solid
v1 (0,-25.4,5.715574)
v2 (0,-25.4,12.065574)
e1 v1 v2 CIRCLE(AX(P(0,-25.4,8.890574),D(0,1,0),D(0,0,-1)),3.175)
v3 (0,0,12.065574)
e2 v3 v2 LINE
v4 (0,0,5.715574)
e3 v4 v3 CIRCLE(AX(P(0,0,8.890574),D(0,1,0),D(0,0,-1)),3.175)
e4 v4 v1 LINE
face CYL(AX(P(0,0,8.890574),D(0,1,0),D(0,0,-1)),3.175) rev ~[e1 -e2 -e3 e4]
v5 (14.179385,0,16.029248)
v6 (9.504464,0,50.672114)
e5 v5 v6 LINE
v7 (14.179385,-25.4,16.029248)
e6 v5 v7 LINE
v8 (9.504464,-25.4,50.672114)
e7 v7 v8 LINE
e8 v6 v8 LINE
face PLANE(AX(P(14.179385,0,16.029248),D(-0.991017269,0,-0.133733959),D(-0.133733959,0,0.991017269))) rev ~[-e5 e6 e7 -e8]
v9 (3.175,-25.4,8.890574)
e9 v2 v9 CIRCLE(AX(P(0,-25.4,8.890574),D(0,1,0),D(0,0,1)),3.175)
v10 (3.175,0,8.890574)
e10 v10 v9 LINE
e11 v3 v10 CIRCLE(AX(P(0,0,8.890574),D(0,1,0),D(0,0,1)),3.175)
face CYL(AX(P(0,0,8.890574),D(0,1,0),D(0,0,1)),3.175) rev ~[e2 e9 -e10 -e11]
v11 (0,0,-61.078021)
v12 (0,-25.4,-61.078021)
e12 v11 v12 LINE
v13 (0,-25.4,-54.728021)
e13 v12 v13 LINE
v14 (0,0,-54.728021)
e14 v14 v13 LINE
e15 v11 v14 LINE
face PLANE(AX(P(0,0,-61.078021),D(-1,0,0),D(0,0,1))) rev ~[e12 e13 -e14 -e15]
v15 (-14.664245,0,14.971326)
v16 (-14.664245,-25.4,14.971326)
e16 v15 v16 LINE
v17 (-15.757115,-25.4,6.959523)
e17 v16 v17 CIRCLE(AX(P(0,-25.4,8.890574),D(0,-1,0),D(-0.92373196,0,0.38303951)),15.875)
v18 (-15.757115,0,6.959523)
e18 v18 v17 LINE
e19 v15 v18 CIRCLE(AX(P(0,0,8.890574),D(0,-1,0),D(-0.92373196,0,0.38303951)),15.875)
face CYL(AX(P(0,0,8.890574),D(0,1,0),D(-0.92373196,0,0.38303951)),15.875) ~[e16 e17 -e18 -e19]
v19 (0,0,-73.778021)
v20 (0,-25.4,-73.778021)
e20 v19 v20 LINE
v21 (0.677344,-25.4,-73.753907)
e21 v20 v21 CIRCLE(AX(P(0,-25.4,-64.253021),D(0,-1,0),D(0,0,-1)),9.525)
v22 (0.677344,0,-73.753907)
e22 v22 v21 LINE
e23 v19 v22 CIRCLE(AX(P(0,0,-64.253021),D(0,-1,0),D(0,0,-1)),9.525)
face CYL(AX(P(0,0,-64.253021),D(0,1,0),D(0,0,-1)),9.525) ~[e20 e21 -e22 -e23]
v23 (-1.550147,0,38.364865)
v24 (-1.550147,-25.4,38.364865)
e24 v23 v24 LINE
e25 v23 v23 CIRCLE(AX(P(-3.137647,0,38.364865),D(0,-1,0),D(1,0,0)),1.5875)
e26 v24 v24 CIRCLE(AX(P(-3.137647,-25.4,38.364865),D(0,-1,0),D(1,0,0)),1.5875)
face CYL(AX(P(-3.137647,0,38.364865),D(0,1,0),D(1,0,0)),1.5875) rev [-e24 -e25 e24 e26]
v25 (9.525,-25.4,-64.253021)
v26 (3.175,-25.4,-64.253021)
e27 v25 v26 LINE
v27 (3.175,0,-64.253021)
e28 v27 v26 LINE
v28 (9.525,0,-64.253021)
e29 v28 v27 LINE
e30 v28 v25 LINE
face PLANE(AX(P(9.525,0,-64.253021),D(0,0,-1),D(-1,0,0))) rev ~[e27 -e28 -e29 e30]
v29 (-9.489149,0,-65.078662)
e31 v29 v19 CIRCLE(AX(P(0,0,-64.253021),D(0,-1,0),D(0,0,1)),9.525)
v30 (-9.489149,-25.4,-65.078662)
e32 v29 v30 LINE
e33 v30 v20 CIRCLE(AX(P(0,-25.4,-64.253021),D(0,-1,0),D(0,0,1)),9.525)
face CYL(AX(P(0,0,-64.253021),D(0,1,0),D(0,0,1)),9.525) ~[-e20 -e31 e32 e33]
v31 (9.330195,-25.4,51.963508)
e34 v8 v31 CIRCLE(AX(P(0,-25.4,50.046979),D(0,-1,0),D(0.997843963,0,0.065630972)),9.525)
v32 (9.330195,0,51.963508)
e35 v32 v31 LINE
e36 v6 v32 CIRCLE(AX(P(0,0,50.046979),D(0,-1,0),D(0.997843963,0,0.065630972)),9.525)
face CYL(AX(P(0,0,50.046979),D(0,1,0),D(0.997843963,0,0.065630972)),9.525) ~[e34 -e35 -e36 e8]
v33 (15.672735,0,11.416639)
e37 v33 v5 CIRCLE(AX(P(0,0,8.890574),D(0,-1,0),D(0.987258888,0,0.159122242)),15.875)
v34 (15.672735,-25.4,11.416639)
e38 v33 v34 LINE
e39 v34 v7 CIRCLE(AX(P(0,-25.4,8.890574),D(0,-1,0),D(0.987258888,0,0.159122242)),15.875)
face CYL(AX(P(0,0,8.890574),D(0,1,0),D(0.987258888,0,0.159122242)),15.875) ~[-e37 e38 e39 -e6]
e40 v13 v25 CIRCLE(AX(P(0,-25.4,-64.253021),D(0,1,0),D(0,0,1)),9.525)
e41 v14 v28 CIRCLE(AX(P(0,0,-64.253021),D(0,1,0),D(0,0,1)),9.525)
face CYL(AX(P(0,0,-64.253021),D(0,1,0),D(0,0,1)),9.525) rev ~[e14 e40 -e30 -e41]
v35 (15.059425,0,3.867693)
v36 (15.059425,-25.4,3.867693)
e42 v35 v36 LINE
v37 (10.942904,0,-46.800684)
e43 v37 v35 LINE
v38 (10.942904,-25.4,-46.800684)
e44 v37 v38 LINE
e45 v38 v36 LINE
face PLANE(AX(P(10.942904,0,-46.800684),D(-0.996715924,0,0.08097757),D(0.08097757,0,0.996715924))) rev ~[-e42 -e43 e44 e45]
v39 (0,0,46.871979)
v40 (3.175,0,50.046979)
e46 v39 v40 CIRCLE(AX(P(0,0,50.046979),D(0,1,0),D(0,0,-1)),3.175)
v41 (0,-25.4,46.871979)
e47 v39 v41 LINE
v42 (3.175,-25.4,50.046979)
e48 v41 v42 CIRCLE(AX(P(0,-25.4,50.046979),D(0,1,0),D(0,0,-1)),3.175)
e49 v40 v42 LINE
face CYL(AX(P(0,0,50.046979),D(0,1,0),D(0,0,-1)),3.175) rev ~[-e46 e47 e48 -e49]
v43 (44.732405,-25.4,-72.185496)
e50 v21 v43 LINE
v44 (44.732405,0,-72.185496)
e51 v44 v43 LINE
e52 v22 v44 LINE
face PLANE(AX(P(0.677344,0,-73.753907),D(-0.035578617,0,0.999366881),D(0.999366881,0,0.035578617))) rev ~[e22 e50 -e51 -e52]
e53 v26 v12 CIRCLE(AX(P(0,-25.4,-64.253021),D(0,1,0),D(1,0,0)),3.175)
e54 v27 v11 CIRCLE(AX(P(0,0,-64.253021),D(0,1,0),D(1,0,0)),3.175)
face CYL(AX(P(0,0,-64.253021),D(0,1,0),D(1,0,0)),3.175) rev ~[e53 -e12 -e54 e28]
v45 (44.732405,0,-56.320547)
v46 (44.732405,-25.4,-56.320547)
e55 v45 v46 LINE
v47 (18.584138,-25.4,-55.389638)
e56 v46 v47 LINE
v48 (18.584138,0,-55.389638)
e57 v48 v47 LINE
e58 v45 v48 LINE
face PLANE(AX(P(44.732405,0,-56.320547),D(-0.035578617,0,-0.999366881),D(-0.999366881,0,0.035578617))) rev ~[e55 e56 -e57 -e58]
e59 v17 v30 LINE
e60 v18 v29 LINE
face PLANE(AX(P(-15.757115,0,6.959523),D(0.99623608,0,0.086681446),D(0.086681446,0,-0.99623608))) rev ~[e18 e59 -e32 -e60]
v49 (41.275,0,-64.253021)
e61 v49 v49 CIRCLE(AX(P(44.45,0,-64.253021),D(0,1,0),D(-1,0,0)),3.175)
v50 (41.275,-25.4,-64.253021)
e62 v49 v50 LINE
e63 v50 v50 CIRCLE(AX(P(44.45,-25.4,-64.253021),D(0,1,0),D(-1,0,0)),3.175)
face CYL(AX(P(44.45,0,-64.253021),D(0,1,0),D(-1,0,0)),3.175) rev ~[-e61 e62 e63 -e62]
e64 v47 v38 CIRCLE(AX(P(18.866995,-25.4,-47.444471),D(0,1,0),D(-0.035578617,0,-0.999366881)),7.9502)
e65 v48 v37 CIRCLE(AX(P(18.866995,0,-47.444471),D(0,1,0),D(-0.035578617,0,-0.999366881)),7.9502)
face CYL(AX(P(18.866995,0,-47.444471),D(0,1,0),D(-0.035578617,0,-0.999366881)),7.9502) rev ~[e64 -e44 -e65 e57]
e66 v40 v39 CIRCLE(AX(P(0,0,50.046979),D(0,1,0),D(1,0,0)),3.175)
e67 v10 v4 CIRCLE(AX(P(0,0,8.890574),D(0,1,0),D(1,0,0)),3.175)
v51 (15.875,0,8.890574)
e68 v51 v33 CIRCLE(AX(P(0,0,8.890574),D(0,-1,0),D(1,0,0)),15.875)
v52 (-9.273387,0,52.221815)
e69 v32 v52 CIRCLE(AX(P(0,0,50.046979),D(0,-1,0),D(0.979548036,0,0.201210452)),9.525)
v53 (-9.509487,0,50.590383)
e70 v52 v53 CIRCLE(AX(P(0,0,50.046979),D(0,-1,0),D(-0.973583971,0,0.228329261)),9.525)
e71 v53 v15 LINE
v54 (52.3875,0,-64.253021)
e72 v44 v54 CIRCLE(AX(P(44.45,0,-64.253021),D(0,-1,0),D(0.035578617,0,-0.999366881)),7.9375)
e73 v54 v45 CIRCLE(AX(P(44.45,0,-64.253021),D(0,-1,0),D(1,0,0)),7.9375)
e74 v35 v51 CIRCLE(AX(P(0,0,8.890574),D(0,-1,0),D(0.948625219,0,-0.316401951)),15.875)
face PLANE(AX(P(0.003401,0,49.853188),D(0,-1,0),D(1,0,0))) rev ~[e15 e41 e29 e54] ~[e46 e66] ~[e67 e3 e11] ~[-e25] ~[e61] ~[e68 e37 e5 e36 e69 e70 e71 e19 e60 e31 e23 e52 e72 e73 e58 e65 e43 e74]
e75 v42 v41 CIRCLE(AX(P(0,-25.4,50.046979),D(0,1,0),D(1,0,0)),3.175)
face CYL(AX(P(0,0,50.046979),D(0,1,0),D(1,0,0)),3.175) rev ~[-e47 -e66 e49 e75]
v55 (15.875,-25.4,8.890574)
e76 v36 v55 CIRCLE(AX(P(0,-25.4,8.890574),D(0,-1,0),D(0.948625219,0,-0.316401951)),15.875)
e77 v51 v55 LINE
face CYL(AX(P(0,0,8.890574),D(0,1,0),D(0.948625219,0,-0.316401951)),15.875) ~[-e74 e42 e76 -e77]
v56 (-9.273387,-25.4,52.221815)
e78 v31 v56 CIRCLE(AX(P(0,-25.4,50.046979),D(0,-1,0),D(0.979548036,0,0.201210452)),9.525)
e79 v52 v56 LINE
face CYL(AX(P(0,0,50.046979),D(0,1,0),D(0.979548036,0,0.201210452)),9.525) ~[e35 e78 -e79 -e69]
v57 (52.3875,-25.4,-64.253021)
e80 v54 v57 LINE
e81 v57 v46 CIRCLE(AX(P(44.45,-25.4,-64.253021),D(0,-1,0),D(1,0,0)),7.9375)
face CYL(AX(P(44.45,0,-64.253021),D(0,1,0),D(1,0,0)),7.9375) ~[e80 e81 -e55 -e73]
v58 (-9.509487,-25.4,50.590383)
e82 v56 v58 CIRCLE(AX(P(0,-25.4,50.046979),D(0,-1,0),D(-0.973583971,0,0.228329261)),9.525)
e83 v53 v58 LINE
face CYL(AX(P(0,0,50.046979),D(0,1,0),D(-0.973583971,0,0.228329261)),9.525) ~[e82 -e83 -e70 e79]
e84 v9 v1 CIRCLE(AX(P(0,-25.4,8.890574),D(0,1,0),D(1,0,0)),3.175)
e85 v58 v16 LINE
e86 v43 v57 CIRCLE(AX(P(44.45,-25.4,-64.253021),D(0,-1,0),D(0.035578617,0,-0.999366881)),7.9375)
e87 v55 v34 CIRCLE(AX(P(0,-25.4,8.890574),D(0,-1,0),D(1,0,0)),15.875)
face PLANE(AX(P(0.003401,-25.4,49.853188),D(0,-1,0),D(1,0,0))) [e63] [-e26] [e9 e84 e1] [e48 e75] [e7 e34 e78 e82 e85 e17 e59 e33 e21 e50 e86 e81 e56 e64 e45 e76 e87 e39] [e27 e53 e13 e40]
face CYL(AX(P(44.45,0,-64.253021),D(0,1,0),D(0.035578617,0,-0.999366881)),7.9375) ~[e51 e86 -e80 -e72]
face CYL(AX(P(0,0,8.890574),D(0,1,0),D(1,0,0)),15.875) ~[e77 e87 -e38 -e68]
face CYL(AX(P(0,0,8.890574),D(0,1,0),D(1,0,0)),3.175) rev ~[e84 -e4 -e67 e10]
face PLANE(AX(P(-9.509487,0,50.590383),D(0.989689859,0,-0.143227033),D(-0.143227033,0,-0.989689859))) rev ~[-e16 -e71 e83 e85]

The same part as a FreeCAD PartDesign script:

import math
import FreeCAD as App
import Part
import Sketcher
from FreeCAD import Vector
Q = App.Units.Quantity

doc = App.newDocument("Part")
body = doc.addObject("PartDesign::Body", "Body")

sketch1 = doc.addObject("Sketcher::SketchObject", "Sketch")
body.addObject(sketch1)
sketch1.AttachmentSupport = (doc.XZ_Plane, [""])
sketch1.MapMode = "FlatFace"
sketch1.addGeometry([
    Part.ArcOfCircle(Part.Circle(Vector(0, -64.253021, 0), Vector(0, 0, 1), 9.525), math.radians(-90), math.radians(-85.92213)),
    Part.LineSegment(Vector(0.677344, -73.753907, 0), Vector(44.732405, -72.185496, 0)),
    Part.ArcOfCircle(Part.Circle(Vector(44.45, -64.253021, 0), Vector(0, 0, 1), 7.9375), math.radians(-87.961065), math.radians(0)),
    Part.ArcOfCircle(Part.Circle(Vector(44.45, -64.253021, 0), Vector(0, 0, 1), 7.9375), math.radians(0), math.radians(87.961065)),
    Part.LineSegment(Vector(44.732405, -56.320547, 0), Vector(18.584138, -55.389638, 0)),
    Part.ArcOfCircle(Part.Circle(Vector(18.866995, -47.444471, 0), Vector(0, 0, 1), 7.9502), math.radians(175.355241), math.radians(267.961065)),
    Part.LineSegment(Vector(10.942904, -46.800684, 0), Vector(15.059425, 3.867693, 0)),
    Part.ArcOfCircle(Part.Circle(Vector(0, 8.890574, 0), Vector(0, 0, 1), 15.875), math.radians(-18.445469), math.radians(0)),
    Part.ArcOfCircle(Part.Circle(Vector(0, 8.890574, 0), Vector(0, 0, 1), 15.875), math.radians(0), math.radians(9.155952)),
    Part.ArcOfCircle(Part.Circle(Vector(0, 8.890574, 0), Vector(0, 0, 1), 15.875), math.radians(9.155952), math.radians(26.723172)),
    Part.LineSegment(Vector(14.179385, 16.029248, 0), Vector(9.504464, 50.672114, 0)),
    Part.ArcOfCircle(Part.Circle(Vector(0, 50.046979, 0), Vector(0, 0, 1), 9.525), math.radians(3.763083), math.radians(11.607752)),
    Part.ArcOfCircle(Part.Circle(Vector(0, 50.046979, 0), Vector(0, 0, 1), 9.525), math.radians(11.607752), math.radians(166.801272)),
    Part.ArcOfCircle(Part.Circle(Vector(0, 50.046979, 0), Vector(0, 0, 1), 9.525), math.radians(166.801272), math.radians(176.72948)),
    Part.LineSegment(Vector(-9.509487, 50.590383, 0), Vector(-14.664245, 14.971326, 0)),
    Part.ArcOfCircle(Part.Circle(Vector(0, 8.890574, 0), Vector(0, 0, 1), 15.875), math.radians(157.477916), math.radians(186.986817)),
    Part.LineSegment(Vector(-15.757115, 6.959523, 0), Vector(-9.489149, -65.078662, 0)),
    Part.ArcOfCircle(Part.Circle(Vector(0, -64.253021, 0), Vector(0, 0, 1), 9.525), math.radians(-175.027278), math.radians(-90)),
    Part.ArcOfCircle(Part.Circle(Vector(0, -64.253021, 0), Vector(0, 0, 1), 9.525), math.radians(0), math.radians(90)),
    Part.LineSegment(Vector(9.525, -64.253021, 0), Vector(3.175, -64.253021, 0)),
    Part.ArcOfCircle(Part.Circle(Vector(0, -64.253021, 0), Vector(0, 0, 1), 3.175), math.radians(90), math.radians(360)),
    Part.LineSegment(Vector(0, -61.078021, 0), Vector(0, -54.728021, 0)),
    Part.Circle(Vector(44.45, -64.253021, 0), Vector(0, 0, 1), 3.175),
    Part.ArcOfCircle(Part.Circle(Vector(0, 8.890574, 0), Vector(0, 0, 1), 3.175), math.radians(0), math.radians(90)),
    Part.ArcOfCircle(Part.Circle(Vector(0, 8.890574, 0), Vector(0, 0, 1), 3.175), math.radians(-90), math.radians(0)),
    Part.ArcOfCircle(Part.Circle(Vector(0, 8.890574, 0), Vector(0, 0, 1), 3.175), math.radians(90), math.radians(270)),
    Part.Circle(Vector(-3.137647, 38.364865, 0), Vector(0, 0, 1), 1.5875),
    Part.ArcOfCircle(Part.Circle(Vector(0, 50.046979, 0), Vector(0, 0, 1), 3.175), math.radians(0), math.radians(270)),
    Part.ArcOfCircle(Part.Circle(Vector(0, 50.046979, 0), Vector(0, 0, 1), 3.175), math.radians(-90), math.radians(0)),
], False)
sketch1.addConstraint([
    Sketcher.Constraint("Coincident", 0, 2, 1, 1),
    Sketcher.Constraint("Coincident", 1, 2, 2, 1),
    Sketcher.Constraint("Coincident", 2, 2, 3, 1),
    Sketcher.Constraint("Coincident", 3, 2, 4, 1),
    Sketcher.Constraint("Coincident", 4, 2, 5, 2),
    Sketcher.Constraint("Coincident", 5, 1, 6, 1),
    Sketcher.Constraint("Coincident", 6, 2, 7, 1),
    Sketcher.Constraint("Coincident", 7, 2, 8, 1),
    Sketcher.Constraint("Coincident", 8, 2, 9, 1),
    Sketcher.Constraint("Coincident", 9, 2, 10, 1),
    Sketcher.Constraint("Coincident", 10, 2, 11, 1),
    Sketcher.Constraint("Coincident", 11, 2, 12, 1),
    Sketcher.Constraint("Coincident", 12, 2, 13, 1),
    Sketcher.Constraint("Coincident", 13, 2, 14, 1),
    Sketcher.Constraint("Coincident", 14, 2, 15, 1),
    Sketcher.Constraint("Coincident", 15, 2, 16, 1),
    Sketcher.Constraint("Coincident", 16, 2, 17, 1),
    Sketcher.Constraint("Coincident", 17, 2, 0, 1),
    Sketcher.Constraint("Coincident", 18, 1, 19, 1),
    Sketcher.Constraint("Coincident", 19, 2, 20, 2),
    Sketcher.Constraint("Coincident", 20, 1, 21, 1),
    Sketcher.Constraint("Coincident", 21, 2, 18, 2),
    Sketcher.Constraint("Coincident", 23, 1, 24, 2),
    Sketcher.Constraint("Coincident", 24, 1, 25, 2),
    Sketcher.Constraint("Coincident", 25, 1, 23, 2),
    Sketcher.Constraint("Coincident", 27, 1, 28, 2),
    Sketcher.Constraint("Coincident", 28, 1, 27, 2),
    Sketcher.Constraint("Horizontal", 19),
    Sketcher.Constraint("Vertical", 21),
    Sketcher.Constraint("Coincident", 3, 3, 2, 3),
    Sketcher.Constraint("Coincident", 8, 3, 7, 3),
    Sketcher.Constraint("Coincident", 9, 3, 7, 3),
    Sketcher.Constraint("Coincident", 12, 3, 11, 3),
    Sketcher.Constraint("Coincident", 13, 3, 11, 3),
    Sketcher.Constraint("Coincident", 15, 3, 7, 3),
    Sketcher.Constraint("Coincident", 17, 3, 0, 3),
    Sketcher.Constraint("Coincident", 18, 3, 0, 3),
    Sketcher.Constraint("Coincident", 20, 3, 0, 3),
    Sketcher.Constraint("Coincident", 22, 3, 2, 3),
    Sketcher.Constraint("Coincident", 23, 3, 7, 3),
    Sketcher.Constraint("Coincident", 24, 3, 7, 3),
    Sketcher.Constraint("Coincident", 27, 3, 11, 3),
    Sketcher.Constraint("PointOnObject", 0, 3, -2),
    Sketcher.Constraint("PointOnObject", 7, 3, -2),
    Sketcher.Constraint("PointOnObject", 11, 3, -2),
    Sketcher.Constraint("PointOnObject", 25, 3, -2),
    Sketcher.Constraint("PointOnObject", 28, 3, -2),
    Sketcher.Constraint("PointOnObject", 17, 2, -2),
    Sketcher.Constraint("PointOnObject", 20, 1, -2),
    Sketcher.Constraint("PointOnObject", 24, 1, -2),
    Sketcher.Constraint("PointOnObject", 25, 1, -2),
    Sketcher.Constraint("PointOnObject", 28, 1, -2),
    Sketcher.Constraint("Diameter", 22, Q("0.25 in")),
    Sketcher.Constraint("Diameter", 26, Q("0.125 in")),
    Sketcher.Constraint("Radius", 0, Q("0.375 in")),
    Sketcher.Constraint("Radius", 2, Q("0.3125 in")),
    Sketcher.Constraint("Radius", 5, Q("0.313 in")),
    Sketcher.Constraint("Radius", 7, Q("0.625 in")),
    Sketcher.Constraint("Radius", 11, Q("0.375 in")),
    Sketcher.Constraint("Radius", 15, Q("0.625 in")),
    Sketcher.Constraint("Radius", 18, Q("0.375 in")),
    Sketcher.Constraint("Radius", 20, Q("0.125 in")),
    Sketcher.Constraint("Radius", 23, Q("0.125 in")),
    Sketcher.Constraint("Radius", 27, Q("0.125 in")),
    Sketcher.Constraint("DistanceY", 0, 3, 11, 3, Q("4.5 in")),
    Sketcher.Constraint("DistanceX", -1, 1, 2, 3, Q("1.75 in")),
    Sketcher.Constraint("DistanceY", 19, 2, 20, 1, Q("0.125 in")),
    Sketcher.Constraint("DistanceY", 0, 3, 5, 1, Q("0.6870999 in")),
    Sketcher.Constraint("DistanceX", 13, 2, 12, 2, Q("0.236099 mm")),
    Sketcher.Constraint("Distance", 1, Q("44.082972 mm")),
    Sketcher.Constraint("Distance", 14, Q("35.990121 mm")),
    Sketcher.Constraint("DistanceY", 0, 3, -1, 1, Q("64.253021 mm")),
    Sketcher.Constraint("DistanceY", 2, 3, -1, 1, Q("64.253021 mm")),
    Sketcher.Constraint("DistanceY", 5, 3, -1, 1, Q("47.444471 mm")),
    Sketcher.Constraint("DistanceY", 2, 2, -1, 1, Q("64.253021 mm")),
    Sketcher.Constraint("DistanceX", -1, 1, 4, 2, Q("18.584138 mm")),
    Sketcher.Constraint("DistanceY", 4, 2, -1, 1, Q("55.389638 mm")),
    Sketcher.Constraint("DistanceY", -1, 1, 8, 2, Q("11.416639 mm")),
    Sketcher.Constraint("DistanceY", -1, 1, 11, 2, Q("51.963508 mm")),
    Sketcher.Constraint("DistanceX", 16, 2, -1, 1, Q("9.489149 mm")),
    Sketcher.Constraint("DistanceY", -1, 1, 27, 1, Q("50.046979 mm")),
    Sketcher.Constraint("DistanceY", 7, 3, 26, 3, Q("29.474291 mm")),
    Sketcher.Constraint("DistanceX", 0, 2, 5, 3, Q("18.189652 mm")),
    Sketcher.Constraint("DistanceY", 1, 2, 3, 2, Q("15.864949 mm")),
    Sketcher.Constraint("DistanceY", 6, 2, 15, 3, Q("5.022881 mm")),
    Sketcher.Constraint("DistanceY", 6, 2, 7, 2, Q("5.022881 mm")),
    Sketcher.Constraint("DistanceX", 6, 2, 8, 2, Q("0.61331 mm")),
    Sketcher.Constraint("DistanceX", 9, 2, 8, 2, Q("1.49335 mm")),
    Sketcher.Constraint("DistanceX", 11, 2, 10, 2, Q("0.174269 mm")),
    Sketcher.Constraint("DistanceY", 13, 2, 12, 2, Q("1.631432 mm")),
    Sketcher.Constraint("DistanceX", 15, 2, 14, 2, Q("1.09287 mm")),
    Sketcher.Constraint("DistanceX", 26, 3, -1, 1, Q("3.137647 mm")),
    Sketcher.Constraint("DistanceY", -1, 1, 23, 1, Q("8.890574 mm")),
])
pad1 = doc.addObject("PartDesign::Pad", "Pad")
body.addObject(pad1)
pad1.Profile = sketch1
pad1.Length = Q("1 in")

doc.recompute()
